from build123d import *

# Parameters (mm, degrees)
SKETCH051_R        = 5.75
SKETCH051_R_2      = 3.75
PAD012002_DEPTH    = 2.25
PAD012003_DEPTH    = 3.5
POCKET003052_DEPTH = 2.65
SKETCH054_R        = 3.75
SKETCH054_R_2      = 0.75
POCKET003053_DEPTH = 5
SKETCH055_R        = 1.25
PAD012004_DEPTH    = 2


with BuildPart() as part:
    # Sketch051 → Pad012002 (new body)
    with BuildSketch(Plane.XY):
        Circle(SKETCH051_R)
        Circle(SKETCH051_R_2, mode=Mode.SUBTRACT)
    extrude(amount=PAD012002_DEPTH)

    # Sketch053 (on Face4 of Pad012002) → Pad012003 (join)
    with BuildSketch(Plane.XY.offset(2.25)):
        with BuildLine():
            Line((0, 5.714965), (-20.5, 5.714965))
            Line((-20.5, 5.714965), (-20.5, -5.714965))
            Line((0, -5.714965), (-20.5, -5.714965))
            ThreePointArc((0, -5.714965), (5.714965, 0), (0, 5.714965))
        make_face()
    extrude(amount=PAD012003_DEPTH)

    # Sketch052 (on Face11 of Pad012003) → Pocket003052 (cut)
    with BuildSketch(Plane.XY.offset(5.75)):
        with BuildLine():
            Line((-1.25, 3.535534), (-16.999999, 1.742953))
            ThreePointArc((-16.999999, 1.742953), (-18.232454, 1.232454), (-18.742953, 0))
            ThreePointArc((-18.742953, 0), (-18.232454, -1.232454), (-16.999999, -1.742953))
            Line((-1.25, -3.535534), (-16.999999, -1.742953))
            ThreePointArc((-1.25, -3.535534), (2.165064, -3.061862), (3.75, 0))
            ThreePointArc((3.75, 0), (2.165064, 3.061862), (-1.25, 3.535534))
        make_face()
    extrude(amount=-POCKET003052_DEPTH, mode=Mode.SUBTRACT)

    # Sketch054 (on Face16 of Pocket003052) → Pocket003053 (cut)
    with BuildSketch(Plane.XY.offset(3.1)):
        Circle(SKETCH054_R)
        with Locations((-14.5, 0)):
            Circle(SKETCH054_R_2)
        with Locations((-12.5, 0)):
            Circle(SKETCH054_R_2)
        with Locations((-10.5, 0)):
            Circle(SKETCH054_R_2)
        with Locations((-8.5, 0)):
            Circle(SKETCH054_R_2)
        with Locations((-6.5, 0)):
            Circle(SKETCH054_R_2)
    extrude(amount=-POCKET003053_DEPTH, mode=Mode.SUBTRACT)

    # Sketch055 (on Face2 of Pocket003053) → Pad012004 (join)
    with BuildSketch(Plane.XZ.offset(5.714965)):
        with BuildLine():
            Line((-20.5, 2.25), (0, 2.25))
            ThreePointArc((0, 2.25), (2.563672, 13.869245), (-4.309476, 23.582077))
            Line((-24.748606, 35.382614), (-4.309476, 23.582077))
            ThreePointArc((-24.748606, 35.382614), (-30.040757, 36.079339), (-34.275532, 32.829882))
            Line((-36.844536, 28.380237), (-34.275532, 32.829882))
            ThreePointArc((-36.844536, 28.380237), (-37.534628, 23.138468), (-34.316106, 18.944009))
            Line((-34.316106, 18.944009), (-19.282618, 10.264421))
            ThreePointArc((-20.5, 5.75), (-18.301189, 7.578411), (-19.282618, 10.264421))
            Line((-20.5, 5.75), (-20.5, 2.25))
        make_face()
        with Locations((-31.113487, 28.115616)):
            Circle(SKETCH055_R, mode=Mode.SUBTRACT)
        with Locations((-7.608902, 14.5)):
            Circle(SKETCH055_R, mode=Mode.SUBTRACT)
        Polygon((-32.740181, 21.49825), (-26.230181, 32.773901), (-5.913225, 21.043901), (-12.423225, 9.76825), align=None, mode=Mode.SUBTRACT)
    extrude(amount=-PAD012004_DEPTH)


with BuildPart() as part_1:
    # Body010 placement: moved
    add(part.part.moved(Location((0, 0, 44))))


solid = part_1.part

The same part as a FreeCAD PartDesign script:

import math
import FreeCAD as App
import Part
import Sketcher


def add_polygon(sketch, points):
    """Adds a closed chain of lines whose ends are joined by coincident constraints."""
    first, n = sketch.GeometryCount, len(points)
    for a, b in zip(points, points[1:] + points[:1]):
        sketch.addGeometry(Part.LineSegment(App.Vector(*a, 0), App.Vector(*b, 0)), False)
    for i in range(n):
        sketch.addConstraint(Sketcher.Constraint("Coincident", first + i, 2, first + (i + 1) % n, 1))

doc = App.newDocument("Part")
params = doc.addObject("Spreadsheet::Sheet", "Params")
for row, (alias, value) in enumerate([
    ("sketch1_diameter", "11.5 mm"),
    ("sketch1_diameter2", "7.5 mm"),
    ("pad1_length", "2.25 mm"),
    ("sketch2_width", "20.5 mm"),
    ("pad2_length", "3.5 mm"),
    ("sketch3_radius", "3.75 mm"),
    ("pocket1_length", "2.65 mm"),
    ("sketch4_diameter", "7.5 mm"),
    ("sketch4_diameter2", "1.5 mm"),
    ("pocket2_length", "5 mm"),
    ("sketch5_diameter", "2.5 mm"),
    ("sketch5_diameter2", "2.5 mm"),
    ("sketch5_width", "20.5 mm"),
    ("sketch5_height", "3.5 mm"),
    ("sketch5_length", "23.46 mm"),
    ("pad3_length", "2 mm"),
], start=1):
    params.set(f"A{row}", alias)
    params.set(f"B{row}", "=" + value)
    params.setAlias(f"B{row}", alias)

body = doc.addObject("PartDesign::Body", "Body")

# Sketch on XY plane
sketch1 = doc.addObject("Sketcher::SketchObject", "Sketch")
body.addObject(sketch1)
sketch1.AttachmentSupport = (doc.XY_Plane, [""])
sketch1.MapMode = "FlatFace"
sketch1.addGeometry([
    Part.Circle(App.Vector(0, 0, 0), App.Vector(0, 0, 1), 5.8),
    Part.Circle(App.Vector(0, 0, 0), App.Vector(0, 0, 1), 3.8),
], False)
sketch1.addConstraint([
    Sketcher.Constraint("Coincident", 0, 3, -1, 1),
    Sketcher.Constraint("Coincident", 1, 3, -1, 1),
    Sketcher.Constraint("Diameter", 0, 11.5),
    Sketcher.Constraint("Diameter", 1, 7.5),
])
sketch1.setExpression("Constraints[2]", "Params.sketch1_diameter")
sketch1.setExpression("Constraints[3]", "Params.sketch1_diameter2")
pad1 = doc.addObject("PartDesign::Pad", "Pad")
body.addObject(pad1)
pad1.Profile = sketch1
pad1.setExpression("Length", "Params.pad1_length")

# Sketch on XY plane
sketch2 = doc.addObject("Sketcher::SketchObject", "Sketch001")
body.addObject(sketch2)
sketch2.AttachmentSupport = (doc.XY_Plane, [""])
sketch2.MapMode = "FlatFace"
sketch2.AttachmentOffset = App.Placement(App.Vector(0, 0, 2.25), App.Rotation())
sketch2.addGeometry([
    Part.LineSegment(App.Vector(0, 6, 0), App.Vector(-20, 6, 0)),
    Part.LineSegment(App.Vector(-20, 6, 0), App.Vector(-20, -6, 0)),
    Part.LineSegment(App.Vector(-20, -6, 0), App.Vector(0, -6, 0)),
    Part.ArcOfCircle(Part.Circle(App.Vector(0, 0, 0), App.Vector(0, 0, 1), 6), math.radians(-90), math.radians(90)),
], False)
sketch2.addConstraint([
    Sketcher.Constraint("Coincident", 0, 2, 1, 1),
    Sketcher.Constraint("Coincident", 1, 2, 2, 1),
    Sketcher.Constraint("Tangent", 2, 2, 3, 1),
    Sketcher.Constraint("Tangent", 3, 2, 0, 1),
    Sketcher.Constraint("Horizontal", 0),
    Sketcher.Constraint("Vertical", 1),
    Sketcher.Constraint("Horizontal", 2),
    Sketcher.Constraint("Coincident", 3, 3, -1, 1),
    Sketcher.Constraint("DistanceX", 0, 2, 0, 1, 20.5),
    Sketcher.Constraint("Radius", 3, 5.714965),
])
sketch2.setExpression("Constraints[8]", "Params.sketch2_width")
pad2 = doc.addObject("PartDesign::Pad", "Pad001")
body.addObject(pad2)
pad2.Profile = sketch2
pad2.setExpression("Length", "Params.pad2_length")

# Sketch on XY plane
sketch3 = doc.addObject("Sketcher::SketchObject", "Sketch002")
body.addObject(sketch3)
sketch3.AttachmentSupport = (doc.XY_Plane, [""])
sketch3.MapMode = "FlatFace"
sketch3.AttachmentOffset = App.Placement(App.Vector(0, 0, 5.75), App.Rotation())
sketch3.addGeometry([
    Part.LineSegment(App.Vector(-1.2, 3.5, 0), App.Vector(-17, 1.7, 0)),  # 0
    Part.ArcOfCircle(Part.Circle(App.Vector(-17, 0, 0), App.Vector(0, 0, 1), 1.7), math.radians(90), math.radians(180)),  # 1
    Part.ArcOfCircle(Part.Circle(App.Vector(-17, 0, 0), App.Vector(0, 0, 1), 1.7), math.radians(180), math.radians(270)),  # 2
    Part.LineSegment(App.Vector(-17, -1.7, 0), App.Vector(-1.2, -3.5, 0)),  # 3
    Part.ArcOfCircle(Part.Circle(App.Vector(0, 0, 0), App.Vector(0, 0, 1), 3.7), math.radians(-109), math.radians(0)),  # 4
    Part.ArcOfCircle(Part.Circle(App.Vector(0, 0, 0), App.Vector(0, 0, 1), 3.7), math.radians(0), math.radians(109)),  # 5
], False)
sketch3.addConstraint([
    Sketcher.Constraint("Coincident", 0, 2, 1, 1),
    Sketcher.Constraint("Tangent", 1, 2, 2, 1),
    Sketcher.Constraint("Coincident", 2, 2, 3, 1),
    Sketcher.Constraint("Coincident", 3, 2, 4, 1),
    Sketcher.Constraint("Tangent", 4, 2, 5, 1),
    Sketcher.Constraint("Coincident", 5, 2, 0, 1),
    Sketcher.Constraint("Coincident", 4, 3, -1, 1),
    Sketcher.Constraint("Equal", 1, 2),
    Sketcher.Constraint("Equal", 4, 5),
    Sketcher.Constraint("Symmetric", 0, 2, 2, 2, -1),
    Sketcher.Constraint("PointOnObject", 1, 2, -1),
    Sketcher.Constraint("PointOnObject", 4, 2, -1),
    Sketcher.Constraint("Vertical", 2, 3, 0, 2),
    Sketcher.Constraint("Vertical", 3, 2, 5, 2),
    Sketcher.Constraint("Radius", 4, 3.75),
    Sketcher.Constraint("DistanceX", 1, 3, -1, 1, 17.0),
    Sketcher.Constraint("DistanceX", 3, 2, 4, 2, 5.0),
    Sketcher.Constraint("Radius", 1, 1.742953),
])
sketch3.setExpression("Constraints[14]", "Params.sketch3_radius")
pocket1 = doc.addObject("PartDesign::Pocket", "Pocket")
body.addObject(pocket1)
pocket1.Profile = sketch3
pocket1.setExpression("Length", "Params.pocket1_length")

# Sketch on XY plane
sketch4 = doc.addObject("Sketcher::SketchObject", "Sketch003")
body.addObject(sketch4)
sketch4.AttachmentSupport = (doc.XY_Plane, [""])
sketch4.MapMode = "FlatFace"
sketch4.AttachmentOffset = App.Placement(App.Vector(0, 0, 3.1), App.Rotation())
sketch4.addGeometry([
    Part.Circle(App.Vector(0, 0, 0), App.Vector(0, 0, 1), 3.8),  # 0
    Part.Circle(App.Vector(-14.5, 0, 0), App.Vector(0, 0, 1), 0.8),  # 1
    Part.Circle(App.Vector(-12.5, 0, 0), App.Vector(0, 0, 1), 0.8),  # 2
    Part.Circle(App.Vector(-10.5, 0, 0), App.Vector(0, 0, 1), 0.8),  # 3
    Part.Circle(App.Vector(-8.5, 0, 0), App.Vector(0, 0, 1), 0.8),  # 4
    Part.Circle(App.Vector(-6.5, 0, 0), App.Vector(0, 0, 1), 0.8),  # 5
], False)
sketch4.addConstraint([
    Sketcher.Constraint("Coincident", 0, 3, -1, 1),
    Sketcher.Constraint("Equal", 1, 2),
    Sketcher.Constraint("Equal", 2, 3),
    Sketcher.Constraint("Equal", 3, 4),
    Sketcher.Constraint("Equal", 4, 5),
    Sketcher.Constraint("PointOnObject", 1, 3, -1),
    Sketcher.Constraint("PointOnObject", 2, 3, -1),
    Sketcher.Constraint("PointOnObject", 3, 3, -1),
    Sketcher.Constraint("PointOnObject", 4, 3, -1),
    Sketcher.Constraint("PointOnObject", 5, 3, -1),
    Sketcher.Constraint("Diameter", 0, 7.5),
    Sketcher.Constraint("Diameter", 1, 1.5),
    Sketcher.Constraint("DistanceX", 1, 3, 2, 3, 2.0),
    Sketcher.Constraint("DistanceX", 2, 3, 3, 3, 2.0),
    Sketcher.Constraint("DistanceX", 3, 3, 4, 3, 2.0),
    Sketcher.Constraint("DistanceX", 4, 3, 5, 3, 2.0),
    Sketcher.Constraint("DistanceX", 1, 3, -1, 1, 14.5),
])
sketch4.setExpression("Constraints[10]", "Params.sketch4_diameter")
sketch4.setExpression("Constraints[11]", "Params.sketch4_diameter2")
pocket2 = doc.addObject("PartDesign::Pocket", "Pocket001")
body.addObject(pocket2)
pocket2.Profile = sketch4
pocket2.setExpression("Length", "Params.pocket2_length")

# Sketch on XZ plane
sketch5 = doc.addObject("Sketcher::SketchObject", "Sketch004")
body.addObject(sketch5)
sketch5.AttachmentSupport = (doc.XZ_Plane, [""])
sketch5.MapMode = "FlatFace"
sketch5.AttachmentOffset = App.Placement(App.Vector(0, 0, 5.714965), App.Rotation())
sketch5.addGeometry(Part.LineSegment(App.Vector(-20.5, 2.25, 0), App.Vector(0, 2.25, 0)), False)  # 0
sketch5.addGeometry(Part.ArcOfCircle(Part.Circle(App.Vector(-11.850905, 10.957233, 0), App.Vector(0, 0, 1), 14.705776), math.radians(-36.305894), math.radians(59.148089)), False)  # 1
sketch5.addGeometry(Part.LineSegment(App.Vector(-4.309476, 23.582077, 0), App.Vector(-24.748606, 35.382614, 0)), False)  # 2
sketch5.addGeometry(Part.ArcOfCircle(Part.Circle(App.Vector(-28.235703, 29.342785, 0), App.Vector(0, 0, 1), 6.974194), math.radians(59.999999), math.radians(149.999999)), False)  # 3
sketch5.addGeometry(Part.LineSegment(App.Vector(-34.275532, 32.829882, 0), App.Vector(-36.844536, 28.380237, 0)), False)  # 4
sketch5.addGeometry(Part.ArcOfCircle(Part.Circle(App.Vector(-30.862208, 24.926338, 0), App.Vector(0, 0, 1), 6.907798), math.radians(149.999998), math.radians(240.000006)), False)  # 5
sketch5.addGeometry(Part.LineSegment(App.Vector(-34.316106, 18.944009, 0), App.Vector(-19.282618, 10.264421, 0)), False)  # 6
sketch5.addGeometry(Part.ArcOfCircle(Part.Circle(App.Vector(-20.698329, 8.224836, 0), App.Vector(0, 0, 1), 2.48277), math.radians(-85.418202), math.radians(55.234819)), False)  # 7
sketch5.addGeometry(Part.LineSegment(App.Vector(-20.5, 5.75, 0), App.Vector(-20.5, 2.25, 0)), False)  # 8
sketch5.addGeometry(Part.Circle(App.Vector(-7.608902, 14.5, 0), App.Vector(0, 0, 1), 1.25), False)  # 9
sketch5.addGeometry(Part.Circle(App.Vector(-31.113487, 28.115616, 0), App.Vector(0, 0, 1), 1.25), False)  # 10
add_polygon(sketch5, [(-12.423225, 9.76825), (-32.740181, 21.49825), (-26.230181, 32.773901), (-5.913225, 21.043901)])  # lines 11-14
sketch5.addConstraint([
    Sketcher.Constraint("Coincident", 0, 2, 1, 1),
    Sketcher.Constraint("Coincident", 1, 2, 2, 1),
    Sketcher.Constraint("Coincident", 2, 2, 3, 1),
    Sketcher.Constraint("Coincident", 3, 2, 4, 1),
    Sketcher.Constraint("Coincident", 4, 2, 5, 1),
    Sketcher.Constraint("Coincident", 5, 2, 6, 1),
    Sketcher.Constraint("Coincident", 6, 2, 7, 2),
    Sketcher.Constraint("Coincident", 7, 1, 8, 1),
    Sketcher.Constraint("Coincident", 8, 2, 0, 1),
    Sketcher.Constraint("Horizontal", 0),
    Sketcher.Constraint("Vertical", 8),
    Sketcher.Constraint("PointOnObject", 0, 2, -2),
    Sketcher.Constraint("Diameter", 9, 2.5),
    Sketcher.Constraint("Diameter", 10, 2.5),
    Sketcher.Constraint("DistanceX", 0, 1, 0, 2, 20.5),
    Sketcher.Constraint("DistanceY", 8, 2, 8, 1, 3.5),
    Sketcher.Constraint("DistanceY", -1, 1, 9, 3, 14.5),
    Sketcher.Constraint("Distance", 11, 23.46),
    Sketcher.Constraint("Distance", 12, 13.02),
    Sketcher.Constraint("Distance", 13, 23.46),
    Sketcher.Constraint("Distance", 14, 13.02),
    Sketcher.Constraint("DistanceY", -1, 1, 0, 2, 2.25),
    Sketcher.Constraint("Radius", 7, 2.48277),
    Sketcher.Constraint("Radius", 1, 14.705776),
    Sketcher.Constraint("Radius", 3, 6.974194),
    Sketcher.Constraint("Radius", 5, 6.907798),
    Sketcher.Constraint("DistanceX", 9, 3, -1, 1, 7.608902),
    Sketcher.Constraint("DistanceY", -1, 1, 12, 2, 32.773901),
    Sketcher.Constraint("DistanceY", -1, 1, 13, 2, 21.043901),
    Sketcher.Constraint("DistanceX", 3, 3, 9, 3, 20.626801),
    Sketcher.Constraint("DistanceX", 5, 3, 2, 2, 6.113602),
    Sketcher.Constraint("DistanceY", 5, 3, 4, 2, 3.453899),
    Sketcher.Constraint("DistanceX", 5, 2, 5, 3, 3.453898),
    Sketcher.Constraint("DistanceX", 7, 3, -1, 1, 20.698329),
    Sketcher.Constraint("DistanceY", -1, 1, 5, 2, 18.944009),
    Sketcher.Constraint("DistanceY", -1, 1, 6, 2, 10.264421),
    Sketcher.Constraint("DistanceX", 11, 2, -1, 1, 32.740181),
    Sketcher.Constraint("DistanceY", -1, 1, 11, 2, 21.49825),
    Sketcher.Constraint("DistanceX", 5, 3, 7, 3, 10.163878),
    Sketcher.Constraint("DistanceY", 7, 3, 3, 3, 21.117949),
    Sketcher.Constraint("DistanceY", 10, 3, 3, 3, 1.227169),
    Sketcher.Constraint("DistanceX", 10, 3, 5, 3, 0.251279),
    Sketcher.Constraint("DistanceX", 10, 3, 1, 3, 19.262582),
    Sketcher.Constraint("DistanceX", 1, 3, 1, 2, 7.541429),
    Sketcher.Constraint("DistanceX", 3, 2, 3, 3, 6.039829),
])
sketch5.setExpression("Constraints[16]", "Params.sketch5_diameter")
sketch5.setExpression("Constraints[17]", "Params.sketch5_diameter2")
sketch5.setExpression("Constraints[18]", "Params.sketch5_width")
sketch5.setExpression("Constraints[19]", "Params.sketch5_height")
sketch5.setExpression("Constraints[21]", "Params.sketch5_length")
pad3 = doc.addObject("PartDesign::Pad", "Pad002")
body.addObject(pad3)
pad3.Profile = sketch5
pad3.setExpression("Length", "Params.pad3_length")
pad3.Reversed = True
body2 = doc.addObject("PartDesign::Body", "Body001")
doc.recompute()

body.Placement = App.Placement(App.Vector(0, 0, 44), App.Rotation(App.Vector(0, 0, 1), 0))
boolean = doc.addObject("PartDesign::Boolean", "Boolean")
body2.addObject(boolean)
boolean.Type = "Fuse"
boolean.addObjects([body])

doc.recompute()
